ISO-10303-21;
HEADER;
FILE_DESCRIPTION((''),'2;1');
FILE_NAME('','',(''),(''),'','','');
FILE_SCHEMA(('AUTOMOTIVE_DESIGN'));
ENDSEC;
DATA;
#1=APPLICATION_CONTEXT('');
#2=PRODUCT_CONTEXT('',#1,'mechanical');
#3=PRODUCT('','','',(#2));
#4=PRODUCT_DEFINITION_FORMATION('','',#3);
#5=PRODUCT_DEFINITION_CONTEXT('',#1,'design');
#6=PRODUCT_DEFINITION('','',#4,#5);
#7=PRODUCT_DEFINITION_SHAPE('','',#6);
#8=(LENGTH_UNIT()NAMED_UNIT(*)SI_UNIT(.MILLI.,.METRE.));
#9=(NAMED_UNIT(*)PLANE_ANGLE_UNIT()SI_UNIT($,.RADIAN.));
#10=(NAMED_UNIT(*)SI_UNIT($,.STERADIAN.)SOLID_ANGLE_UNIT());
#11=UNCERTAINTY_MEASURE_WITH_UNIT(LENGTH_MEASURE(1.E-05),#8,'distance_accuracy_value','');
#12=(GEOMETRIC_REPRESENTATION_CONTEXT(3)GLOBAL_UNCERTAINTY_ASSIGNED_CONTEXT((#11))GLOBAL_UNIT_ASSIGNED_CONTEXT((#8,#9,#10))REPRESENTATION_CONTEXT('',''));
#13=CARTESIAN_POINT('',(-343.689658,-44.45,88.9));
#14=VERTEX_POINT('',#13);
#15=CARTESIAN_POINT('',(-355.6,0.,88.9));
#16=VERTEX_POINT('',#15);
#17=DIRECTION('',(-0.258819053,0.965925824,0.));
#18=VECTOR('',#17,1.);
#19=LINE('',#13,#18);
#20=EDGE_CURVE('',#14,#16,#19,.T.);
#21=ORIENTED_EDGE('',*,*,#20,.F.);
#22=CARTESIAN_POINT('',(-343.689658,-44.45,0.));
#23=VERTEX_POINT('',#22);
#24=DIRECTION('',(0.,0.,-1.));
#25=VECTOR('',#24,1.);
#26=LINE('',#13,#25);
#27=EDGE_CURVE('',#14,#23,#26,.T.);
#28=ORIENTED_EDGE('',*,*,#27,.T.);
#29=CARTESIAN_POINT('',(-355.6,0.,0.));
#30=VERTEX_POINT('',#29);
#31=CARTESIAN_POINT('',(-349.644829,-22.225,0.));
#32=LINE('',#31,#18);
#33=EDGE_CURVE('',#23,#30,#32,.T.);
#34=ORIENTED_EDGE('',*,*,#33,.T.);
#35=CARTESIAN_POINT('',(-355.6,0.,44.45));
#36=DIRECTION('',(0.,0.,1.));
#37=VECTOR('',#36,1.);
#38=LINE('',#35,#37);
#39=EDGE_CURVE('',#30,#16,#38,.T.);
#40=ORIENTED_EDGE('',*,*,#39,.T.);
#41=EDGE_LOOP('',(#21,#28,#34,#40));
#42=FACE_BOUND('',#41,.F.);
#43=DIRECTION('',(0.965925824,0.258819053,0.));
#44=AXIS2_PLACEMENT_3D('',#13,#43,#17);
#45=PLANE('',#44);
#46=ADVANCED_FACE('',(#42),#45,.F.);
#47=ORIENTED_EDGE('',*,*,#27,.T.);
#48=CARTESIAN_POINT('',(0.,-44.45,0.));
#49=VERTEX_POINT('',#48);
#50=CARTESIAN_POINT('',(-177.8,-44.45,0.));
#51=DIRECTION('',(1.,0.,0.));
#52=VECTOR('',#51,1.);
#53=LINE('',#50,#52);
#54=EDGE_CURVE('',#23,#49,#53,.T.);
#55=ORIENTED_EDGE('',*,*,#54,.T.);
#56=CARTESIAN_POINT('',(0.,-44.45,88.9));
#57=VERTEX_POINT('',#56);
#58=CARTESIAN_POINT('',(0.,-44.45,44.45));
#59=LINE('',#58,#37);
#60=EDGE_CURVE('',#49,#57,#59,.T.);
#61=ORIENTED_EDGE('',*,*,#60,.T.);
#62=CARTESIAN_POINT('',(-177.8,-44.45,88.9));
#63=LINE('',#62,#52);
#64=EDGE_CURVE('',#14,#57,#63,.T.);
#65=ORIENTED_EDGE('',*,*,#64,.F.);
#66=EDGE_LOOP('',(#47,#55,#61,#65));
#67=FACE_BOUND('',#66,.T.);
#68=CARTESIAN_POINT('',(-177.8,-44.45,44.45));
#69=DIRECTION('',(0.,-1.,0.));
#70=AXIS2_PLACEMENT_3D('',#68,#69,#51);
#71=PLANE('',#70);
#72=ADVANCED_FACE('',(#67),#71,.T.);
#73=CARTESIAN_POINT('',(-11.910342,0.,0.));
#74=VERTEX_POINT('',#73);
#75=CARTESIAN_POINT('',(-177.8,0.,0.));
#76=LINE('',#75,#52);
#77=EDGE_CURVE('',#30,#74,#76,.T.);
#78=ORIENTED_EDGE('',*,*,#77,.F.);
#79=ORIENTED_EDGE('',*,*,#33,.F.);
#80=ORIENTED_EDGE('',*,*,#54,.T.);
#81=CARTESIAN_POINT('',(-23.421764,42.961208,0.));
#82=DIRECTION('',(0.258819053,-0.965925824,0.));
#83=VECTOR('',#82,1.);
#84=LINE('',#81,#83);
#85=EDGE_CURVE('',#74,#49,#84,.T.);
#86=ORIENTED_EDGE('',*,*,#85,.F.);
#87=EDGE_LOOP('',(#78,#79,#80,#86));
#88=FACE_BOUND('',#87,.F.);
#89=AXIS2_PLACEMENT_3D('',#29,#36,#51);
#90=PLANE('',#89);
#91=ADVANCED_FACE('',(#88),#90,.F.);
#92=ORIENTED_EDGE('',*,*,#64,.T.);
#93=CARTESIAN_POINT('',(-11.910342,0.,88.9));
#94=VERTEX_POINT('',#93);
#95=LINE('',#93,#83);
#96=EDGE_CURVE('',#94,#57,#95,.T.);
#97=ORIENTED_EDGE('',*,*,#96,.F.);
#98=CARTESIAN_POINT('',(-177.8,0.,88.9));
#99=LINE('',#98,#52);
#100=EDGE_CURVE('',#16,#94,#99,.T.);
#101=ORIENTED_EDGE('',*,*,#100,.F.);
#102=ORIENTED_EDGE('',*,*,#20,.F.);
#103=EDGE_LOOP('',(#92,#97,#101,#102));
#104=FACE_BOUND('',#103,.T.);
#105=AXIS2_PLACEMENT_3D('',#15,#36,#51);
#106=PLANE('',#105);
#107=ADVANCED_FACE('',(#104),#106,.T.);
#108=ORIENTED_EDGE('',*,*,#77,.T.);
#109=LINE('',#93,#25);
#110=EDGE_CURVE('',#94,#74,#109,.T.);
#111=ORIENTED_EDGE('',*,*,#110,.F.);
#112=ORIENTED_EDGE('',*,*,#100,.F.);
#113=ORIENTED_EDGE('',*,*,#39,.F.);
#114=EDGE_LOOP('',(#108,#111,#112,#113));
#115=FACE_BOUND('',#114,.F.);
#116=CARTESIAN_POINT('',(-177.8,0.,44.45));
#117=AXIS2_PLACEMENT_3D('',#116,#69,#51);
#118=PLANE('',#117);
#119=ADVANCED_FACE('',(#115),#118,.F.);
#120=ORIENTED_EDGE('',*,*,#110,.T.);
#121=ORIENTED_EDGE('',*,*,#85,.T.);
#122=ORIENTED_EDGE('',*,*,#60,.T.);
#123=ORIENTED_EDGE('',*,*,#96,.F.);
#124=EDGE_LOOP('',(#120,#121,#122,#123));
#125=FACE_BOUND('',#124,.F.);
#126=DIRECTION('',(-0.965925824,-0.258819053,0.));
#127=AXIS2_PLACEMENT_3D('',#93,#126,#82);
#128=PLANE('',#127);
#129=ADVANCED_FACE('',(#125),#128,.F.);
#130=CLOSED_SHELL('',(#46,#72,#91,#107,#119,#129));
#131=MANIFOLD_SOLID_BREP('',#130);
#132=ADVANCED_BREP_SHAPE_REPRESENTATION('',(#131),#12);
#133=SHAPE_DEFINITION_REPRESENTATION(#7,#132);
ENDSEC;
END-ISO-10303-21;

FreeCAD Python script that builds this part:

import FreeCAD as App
import Part
import Sketcher
from FreeCAD import Vector
Q = App.Units.Quantity

doc = App.newDocument("Part")
body = doc.addObject("PartDesign::Body", "Body")

# Sketch on XZ plane
sketch1 = body.newObject("Sketcher::SketchObject", "Sketch")
sketch1.AttachmentSupport = (doc.getObject("XZ_Plane"), [""])
sketch1.MapMode = "FlatFace"
sketch1.addGeometry([
    Part.LineSegment(Vector(-356, 89, 0), Vector(-356, 0, 0)),
    Part.LineSegment(Vector(-356, 0, 0), Vector(0, 0, 0)),
    Part.LineSegment(Vector(0, 0, 0), Vector(0, 89, 0)),
    Part.LineSegment(Vector(0, 89, 0), Vector(-356, 89, 0)),
], False)
sketch1.addConstraint([
    Sketcher.Constraint("Coincident", 0, 2, 1, 1),
    Sketcher.Constraint("Coincident", 1, 2, 2, 1),
    Sketcher.Constraint("Coincident", 2, 2, 3, 1),
    Sketcher.Constraint("Coincident", 3, 2, 0, 1),
    Sketcher.Constraint("Vertical", 0),
    Sketcher.Constraint("Horizontal", 1),
    Sketcher.Constraint("Vertical", 2),
    Sketcher.Constraint("Horizontal", 3),
    Sketcher.Constraint("Coincident", 1, 2, -1, 1),
    Sketcher.Constraint("DistanceX", 1, 1, 1, 2, Q("14 in")),
    Sketcher.Constraint("DistanceY", 0, 2, 0, 1, Q("3.5 in")),
])
pad1 = body.newObject("PartDesign::Pad", "Pad")
pad1.Profile = sketch1
pad1.Length = Q("1.75 in")

# Sketch on XY plane
sketch2 = body.newObject("Sketcher::SketchObject", "Sketch001")
sketch2.AttachmentSupport = (doc.getObject("XY_Plane"), [""])
sketch2.MapMode = "FlatFace"
sketch2.AttachmentOffset = App.Placement(Vector(0, 0, 3.5 * 25.4), App.Rotation())
sketch2.addGeometry([
    Part.LineSegment(Vector(0, 0, 0), Vector(-12, 0, 0)),  # 0
    Part.LineSegment(Vector(-12, 0, 0), Vector(0, -44, 0)),  # 1
    Part.LineSegment(Vector(0, -44, 0), Vector(0, 0, 0)),  # 2
    Part.LineSegment(Vector(-344, -44, 0), Vector(-356, 0, 0)),  # 3
    Part.LineSegment(Vector(-356, 0, 0), Vector(-356, -44, 0)),  # 4
    Part.LineSegment(Vector(-356, -44, 0), Vector(-344, -44, 0)),  # 5
], False)
sketch2.addConstraint([
    Sketcher.Constraint("Coincident", 0, 2, 1, 1),
    Sketcher.Constraint("Coincident", 1, 2, 2, 1),
    Sketcher.Constraint("Coincident", 2, 2, 0, 1),
    Sketcher.Constraint("Coincident", 3, 2, 4, 1),
    Sketcher.Constraint("Coincident", 4, 2, 5, 1),
    Sketcher.Constraint("Coincident", 5, 2, 3, 1),
    Sketcher.Constraint("Horizontal", 0),
    Sketcher.Constraint("Vertical", 2),
    Sketcher.Constraint("Vertical", 4),
    Sketcher.Constraint("Horizontal", 5),
    Sketcher.Constraint("Coincident", 2, 2, -1, 1),
    Sketcher.Constraint("PointOnObject", 3, 2, -1),
    Sketcher.Constraint("Parallel", 1, 3),
    Sketcher.Constraint("Horizontal", 1, 2, 4, 2),
    Sketcher.Constraint("DistanceX", 3, 2, -1, 1, Q("14 in")),
    Sketcher.Constraint("Angle", 1, Q("-75 deg")),
    Sketcher.Constraint("DistanceY", 2, 1, 2, 2, Q("1.75 in")),
])
pocket1 = body.newObject("PartDesign::Pocket", "Pocket")
pocket1.Profile = sketch2
pocket1.Length = Q("4 in")

doc.recompute()
